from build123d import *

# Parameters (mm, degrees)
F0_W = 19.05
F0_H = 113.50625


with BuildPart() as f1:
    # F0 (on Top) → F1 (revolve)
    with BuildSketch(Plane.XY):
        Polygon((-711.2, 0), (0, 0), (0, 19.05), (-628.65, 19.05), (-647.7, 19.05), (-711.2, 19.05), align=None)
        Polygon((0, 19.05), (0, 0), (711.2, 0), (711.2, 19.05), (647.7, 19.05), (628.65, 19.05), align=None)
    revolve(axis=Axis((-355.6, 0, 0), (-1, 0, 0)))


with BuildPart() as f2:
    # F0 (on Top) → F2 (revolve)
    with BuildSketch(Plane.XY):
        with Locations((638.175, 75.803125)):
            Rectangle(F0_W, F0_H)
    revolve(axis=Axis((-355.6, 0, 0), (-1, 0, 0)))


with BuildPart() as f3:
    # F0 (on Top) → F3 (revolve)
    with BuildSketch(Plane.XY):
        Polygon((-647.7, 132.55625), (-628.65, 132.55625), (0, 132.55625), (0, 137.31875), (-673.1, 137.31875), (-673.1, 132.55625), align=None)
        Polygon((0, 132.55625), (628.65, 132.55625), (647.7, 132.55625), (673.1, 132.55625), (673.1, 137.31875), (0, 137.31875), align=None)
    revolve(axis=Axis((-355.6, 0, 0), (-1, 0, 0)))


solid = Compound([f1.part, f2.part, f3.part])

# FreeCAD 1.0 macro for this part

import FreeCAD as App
import Part
import Sketcher
Q = App.Units.Quantity


def add_polygon(sketch, points):
    """Adds a closed chain of lines whose ends are joined by coincident constraints."""
    first, n = sketch.GeometryCount, len(points)
    for a, b in zip(points, points[1:] + points[:1]):
        sketch.addGeometry(Part.LineSegment(App.Vector(*a, 0), App.Vector(*b, 0)), False)
    for i in range(n):
        sketch.addConstraint(Sketcher.Constraint("Coincident", first + i, 2, first + (i + 1) % n, 1))

doc = App.newDocument("Part")
body = doc.addObject("PartDesign::Body", "Body")

# Sketch on XY plane
sketch1 = body.newObject("Sketcher::SketchObject", "Sketch")
sketch1.AttachmentSupport = (doc.getObject("XY_Plane"), [""])
sketch1.MapMode = "FlatFace"
add_polygon(sketch1, [(-711, 0), (711, 0), (711, 19), (-711, 19)])  # lines 0-3
sketch1.addConstraint([
    Sketcher.Constraint("Horizontal", 0),
    Sketcher.Constraint("Vertical", 1),
    Sketcher.Constraint("Horizontal", 2),
    Sketcher.Constraint("Vertical", 3),
    Sketcher.Constraint("Symmetric", 0, 2, 3, 2, -1, 1),
    Sketcher.Constraint("DistanceX", 0, 1, 0, 2, Q("56 in")),
    Sketcher.Constraint("DistanceY", 1, 1, 1, 2, Q("0.75 in")),
])
revolution = body.newObject("PartDesign::Revolution", "Revolution")
revolution.Profile = sketch1
revolution.ReferenceAxis = (sketch1, ["H_Axis"])
revolution.Angle = 360
body2 = doc.addObject("PartDesign::Body", "Body001")

# Sketch on XY plane
sketch2 = body2.newObject("Sketcher::SketchObject", "Sketch001")
sketch2.AttachmentSupport = (doc.getObject("XY_Plane001"), [""])
sketch2.MapMode = "FlatFace"
add_polygon(sketch2, [(629, 133), (629, 19), (648, 19), (648, 133)])  # lines 0-3
sketch2.addConstraint([
    Sketcher.Constraint("Vertical", 0),
    Sketcher.Constraint("Horizontal", 1),
    Sketcher.Constraint("Vertical", 2),
    Sketcher.Constraint("Horizontal", 3),
    Sketcher.Constraint("DistanceX", 1, 1, 1, 2, Q("0.75 in")),
    Sketcher.Constraint("DistanceX", -1, 1, 1, 2, Q("25.5 in")),
    Sketcher.Constraint("DistanceY", 0, 2, 0, 1, Q("4.46875 in")),
    Sketcher.Constraint("DistanceY", -1, 1, 0, 2, Q("0.75 in")),
])
revolution2 = body2.newObject("PartDesign::Revolution", "Revolution001")
revolution2.Profile = sketch2
revolution2.ReferenceAxis = (sketch2, ["H_Axis"])
revolution2.Angle = 360
body3 = doc.addObject("PartDesign::Body", "Body002")

# Sketch on XY plane
sketch3 = body3.newObject("Sketcher::SketchObject", "Sketch002")
sketch3.AttachmentSupport = (doc.getObject("XY_Plane002"), [""])
sketch3.MapMode = "FlatFace"
add_polygon(sketch3, [(-673.1, 137.3), (-673.1, 132.6), (673.1, 132.6), (673.1, 137.3)])  # lines 0-3
sketch3.addConstraint([
    Sketcher.Constraint("Vertical", 0),
    Sketcher.Constraint("Horizontal", 1),
    Sketcher.Constraint("Vertical", 2),
    Sketcher.Constraint("Horizontal", 3),
    Sketcher.Constraint("DistanceX", 1, 1, 1, 2, Q("53 in")),
    Sketcher.Constraint("DistanceX", 0, 2, -1, 1, Q("26.5 in")),
    Sketcher.Constraint("DistanceY", 0, 2, 0, 1, Q("0.1875 in")),
    Sketcher.Constraint("DistanceY", -1, 1, 0, 2, Q("5.21875 in")),
])
revolution3 = body3.newObject("PartDesign::Revolution", "Revolution002")
revolution3.Profile = sketch3
revolution3.ReferenceAxis = (sketch3, ["H_Axis"])
revolution3.Angle = 360

doc.recompute()
